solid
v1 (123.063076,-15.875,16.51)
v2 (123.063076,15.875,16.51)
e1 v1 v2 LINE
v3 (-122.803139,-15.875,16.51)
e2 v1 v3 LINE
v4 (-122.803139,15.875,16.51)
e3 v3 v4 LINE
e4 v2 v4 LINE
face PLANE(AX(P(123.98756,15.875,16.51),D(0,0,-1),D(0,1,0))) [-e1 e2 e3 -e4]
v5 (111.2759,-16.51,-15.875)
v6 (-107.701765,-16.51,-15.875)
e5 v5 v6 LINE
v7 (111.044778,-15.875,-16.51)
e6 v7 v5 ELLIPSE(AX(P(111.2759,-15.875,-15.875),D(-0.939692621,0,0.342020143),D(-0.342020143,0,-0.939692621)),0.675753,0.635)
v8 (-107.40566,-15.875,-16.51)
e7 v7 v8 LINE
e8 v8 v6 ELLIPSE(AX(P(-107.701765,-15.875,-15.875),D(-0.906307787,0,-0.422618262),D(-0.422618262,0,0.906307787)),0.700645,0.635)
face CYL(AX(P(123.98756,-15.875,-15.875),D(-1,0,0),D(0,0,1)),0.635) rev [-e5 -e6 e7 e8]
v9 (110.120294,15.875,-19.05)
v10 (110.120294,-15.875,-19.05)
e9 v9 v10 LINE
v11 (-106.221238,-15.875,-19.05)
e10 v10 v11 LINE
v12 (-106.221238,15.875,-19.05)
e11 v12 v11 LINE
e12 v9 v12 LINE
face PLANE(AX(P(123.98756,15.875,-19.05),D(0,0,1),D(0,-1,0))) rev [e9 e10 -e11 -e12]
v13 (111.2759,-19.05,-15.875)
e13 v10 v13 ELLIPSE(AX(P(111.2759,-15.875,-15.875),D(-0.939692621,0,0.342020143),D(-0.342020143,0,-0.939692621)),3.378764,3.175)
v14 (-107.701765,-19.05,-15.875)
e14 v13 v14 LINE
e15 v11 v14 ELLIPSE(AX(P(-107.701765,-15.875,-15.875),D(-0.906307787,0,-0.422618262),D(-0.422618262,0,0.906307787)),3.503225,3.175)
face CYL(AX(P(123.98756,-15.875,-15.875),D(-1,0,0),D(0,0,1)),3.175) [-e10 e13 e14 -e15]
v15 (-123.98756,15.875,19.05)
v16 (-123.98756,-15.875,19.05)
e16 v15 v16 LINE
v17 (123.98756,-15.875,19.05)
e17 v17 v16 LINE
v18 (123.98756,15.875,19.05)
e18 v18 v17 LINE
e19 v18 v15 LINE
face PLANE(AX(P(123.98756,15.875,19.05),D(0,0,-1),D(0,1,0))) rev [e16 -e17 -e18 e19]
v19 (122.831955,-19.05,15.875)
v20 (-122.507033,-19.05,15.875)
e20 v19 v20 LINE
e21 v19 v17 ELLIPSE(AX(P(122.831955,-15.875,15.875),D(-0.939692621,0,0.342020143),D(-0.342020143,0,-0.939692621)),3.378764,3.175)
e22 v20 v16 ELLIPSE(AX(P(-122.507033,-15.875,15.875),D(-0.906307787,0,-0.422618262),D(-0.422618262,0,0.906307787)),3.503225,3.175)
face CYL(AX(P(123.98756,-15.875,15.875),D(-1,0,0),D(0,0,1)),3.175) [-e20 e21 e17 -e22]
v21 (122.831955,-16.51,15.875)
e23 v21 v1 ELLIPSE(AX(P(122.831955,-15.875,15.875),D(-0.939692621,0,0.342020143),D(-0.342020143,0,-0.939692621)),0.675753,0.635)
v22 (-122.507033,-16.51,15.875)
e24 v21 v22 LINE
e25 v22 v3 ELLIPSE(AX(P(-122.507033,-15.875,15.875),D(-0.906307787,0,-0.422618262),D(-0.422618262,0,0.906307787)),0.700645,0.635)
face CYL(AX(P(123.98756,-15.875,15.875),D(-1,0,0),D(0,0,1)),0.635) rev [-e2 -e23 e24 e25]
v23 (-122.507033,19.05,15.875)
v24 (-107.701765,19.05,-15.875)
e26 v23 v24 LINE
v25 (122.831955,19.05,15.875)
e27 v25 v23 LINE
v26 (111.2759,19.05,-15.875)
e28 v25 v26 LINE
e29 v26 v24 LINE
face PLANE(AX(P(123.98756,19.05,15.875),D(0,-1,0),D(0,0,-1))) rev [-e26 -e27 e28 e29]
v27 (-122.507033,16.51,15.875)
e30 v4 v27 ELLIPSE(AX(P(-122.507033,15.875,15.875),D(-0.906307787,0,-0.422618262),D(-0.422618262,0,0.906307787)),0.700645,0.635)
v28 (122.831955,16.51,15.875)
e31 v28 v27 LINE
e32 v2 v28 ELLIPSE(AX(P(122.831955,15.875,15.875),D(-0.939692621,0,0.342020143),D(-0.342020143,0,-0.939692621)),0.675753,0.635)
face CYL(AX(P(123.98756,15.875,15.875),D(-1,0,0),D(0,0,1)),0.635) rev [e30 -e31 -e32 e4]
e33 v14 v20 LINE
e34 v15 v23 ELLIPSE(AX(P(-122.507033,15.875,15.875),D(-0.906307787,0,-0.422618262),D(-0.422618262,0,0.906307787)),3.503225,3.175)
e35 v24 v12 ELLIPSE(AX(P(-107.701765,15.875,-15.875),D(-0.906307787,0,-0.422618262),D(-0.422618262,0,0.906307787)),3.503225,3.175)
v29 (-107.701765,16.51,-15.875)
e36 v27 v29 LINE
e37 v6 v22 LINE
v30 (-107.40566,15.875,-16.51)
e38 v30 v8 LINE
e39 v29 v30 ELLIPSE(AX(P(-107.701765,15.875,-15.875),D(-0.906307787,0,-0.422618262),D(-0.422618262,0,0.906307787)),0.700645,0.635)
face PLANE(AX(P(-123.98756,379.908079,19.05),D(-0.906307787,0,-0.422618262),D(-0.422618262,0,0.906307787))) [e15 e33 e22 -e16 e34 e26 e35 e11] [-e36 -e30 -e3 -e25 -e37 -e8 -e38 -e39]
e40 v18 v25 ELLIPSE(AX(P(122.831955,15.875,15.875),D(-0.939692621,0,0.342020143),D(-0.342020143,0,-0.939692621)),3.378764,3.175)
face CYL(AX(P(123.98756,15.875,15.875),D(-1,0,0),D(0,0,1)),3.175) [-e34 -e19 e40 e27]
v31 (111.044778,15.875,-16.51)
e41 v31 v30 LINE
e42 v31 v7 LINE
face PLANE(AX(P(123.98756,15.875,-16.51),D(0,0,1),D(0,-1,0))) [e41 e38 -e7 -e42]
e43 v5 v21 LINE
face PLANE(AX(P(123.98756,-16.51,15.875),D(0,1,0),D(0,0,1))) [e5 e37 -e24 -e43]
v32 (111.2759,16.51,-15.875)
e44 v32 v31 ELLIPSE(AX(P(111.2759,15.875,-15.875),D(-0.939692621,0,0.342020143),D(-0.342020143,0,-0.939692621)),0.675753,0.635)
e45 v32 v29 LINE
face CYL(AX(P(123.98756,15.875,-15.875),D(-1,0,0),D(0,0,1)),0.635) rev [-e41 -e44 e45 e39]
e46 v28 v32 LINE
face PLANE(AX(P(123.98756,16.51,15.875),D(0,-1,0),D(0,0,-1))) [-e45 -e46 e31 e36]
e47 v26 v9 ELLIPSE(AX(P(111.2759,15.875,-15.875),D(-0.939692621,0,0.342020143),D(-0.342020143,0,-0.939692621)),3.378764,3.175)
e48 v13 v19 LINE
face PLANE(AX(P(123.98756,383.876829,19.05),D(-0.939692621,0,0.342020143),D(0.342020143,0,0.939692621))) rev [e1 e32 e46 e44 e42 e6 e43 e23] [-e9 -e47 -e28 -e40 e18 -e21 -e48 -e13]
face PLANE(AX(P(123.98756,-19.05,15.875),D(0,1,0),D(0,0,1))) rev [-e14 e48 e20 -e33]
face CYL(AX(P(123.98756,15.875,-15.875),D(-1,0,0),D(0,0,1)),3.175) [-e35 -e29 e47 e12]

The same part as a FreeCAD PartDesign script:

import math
import FreeCAD as App
import Part
import Sketcher

V = App.Vector
Q = App.Units.Quantity


def add_polygon(sketch, points):
    """Adds a closed chain of lines whose ends are joined by coincident constraints."""
    first, n = sketch.GeometryCount, len(points)
    for a, b in zip(points, points[1:] + points[:1]):
        sketch.addGeometry(Part.LineSegment(App.Vector(*a, 0), App.Vector(*b, 0)), False)
    for i in range(n):
        sketch.addConstraint(Sketcher.Constraint("Coincident", first + i, 2, first + (i + 1) % n, 1))

doc = App.newDocument("Part")
body = doc.addObject("PartDesign::Body", "Body")

# Sketch on YZ plane
sketch1 = body.newObject("Sketcher::SketchObject", "Sketch")
sketch1.AttachmentSupport = (doc.getObject("YZ_Plane"), [""])
sketch1.MapMode = "FlatFace"
sketch1.addGeometry([
    Part.LineSegment(V(19.1, -15.9, 0), V(19.1, 15.9, 0)),  # 0
    Part.ArcOfCircle(Part.Circle(V(15.9, 15.9, 0), V(0, 0, 1), 3.2), math.radians(0), math.radians(90)),  # 1
    Part.LineSegment(V(15.9, 19.1, 0), V(-15.9, 19.1, 0)),  # 2
    Part.ArcOfCircle(Part.Circle(V(-15.9, 15.9, 0), V(0, 0, 1), 3.2), math.radians(90), math.radians(180)),  # 3
    Part.LineSegment(V(-19.1, 15.9, 0), V(-19.1, -15.9, 0)),  # 4
    Part.ArcOfCircle(Part.Circle(V(-15.9, -15.9, 0), V(0, 0, 1), 3.2), math.radians(-180), math.radians(-90)),  # 5
    Part.LineSegment(V(-15.9, -19.1, 0), V(15.9, -19.1, 0)),  # 6
    Part.ArcOfCircle(Part.Circle(V(15.9, -15.9, 0), V(0, 0, 1), 3.2), math.radians(-90), math.radians(0)),  # 7
    Part.LineSegment(V(16.5, 15.9, 0), V(16.5, -15.9, 0)),  # 8
    Part.ArcOfCircle(Part.Circle(V(15.9, -15.9, 0), V(0, 0, 1), 0.6), math.radians(-90), math.radians(0)),  # 9
    Part.LineSegment(V(15.9, -16.5, 0), V(-15.9, -16.5, 0)),  # 10
    Part.ArcOfCircle(Part.Circle(V(-15.9, -15.9, 0), V(0, 0, 1), 0.6), math.radians(180), math.radians(270)),  # 11
    Part.LineSegment(V(-16.5, -15.9, 0), V(-16.5, 15.9, 0)),  # 12
    Part.ArcOfCircle(Part.Circle(V(-15.9, 15.9, 0), V(0, 0, 1), 0.6), math.radians(90), math.radians(180)),  # 13
    Part.LineSegment(V(-15.9, 16.5, 0), V(15.9, 16.5, 0)),  # 14
    Part.ArcOfCircle(Part.Circle(V(15.9, 15.9, 0), V(0, 0, 1), 0.6), math.radians(0), math.radians(90)),  # 15
], False)
sketch1.addConstraint([
    Sketcher.Constraint("Tangent", 0, 2, 1, 1),
    Sketcher.Constraint("Tangent", 1, 2, 2, 1),
    Sketcher.Constraint("Tangent", 2, 2, 3, 1),
    Sketcher.Constraint("Tangent", 3, 2, 4, 1),
    Sketcher.Constraint("Tangent", 4, 2, 5, 1),
    Sketcher.Constraint("Tangent", 5, 2, 6, 1),
    Sketcher.Constraint("Tangent", 6, 2, 7, 1),
    Sketcher.Constraint("Tangent", 7, 2, 0, 1),
    Sketcher.Constraint("Tangent", 8, 2, 9, 2),
    Sketcher.Constraint("Tangent", 9, 1, 10, 1),
    Sketcher.Constraint("Tangent", 10, 2, 11, 2),
    Sketcher.Constraint("Tangent", 11, 1, 12, 1),
    Sketcher.Constraint("Tangent", 12, 2, 13, 2),
    Sketcher.Constraint("Tangent", 13, 1, 14, 1),
    Sketcher.Constraint("Tangent", 14, 2, 15, 2),
    Sketcher.Constraint("Tangent", 15, 1, 8, 1),
    Sketcher.Constraint("Vertical", 0),
    Sketcher.Constraint("Horizontal", 2),
    Sketcher.Constraint("Vertical", 4),
    Sketcher.Constraint("Horizontal", 6),
    Sketcher.Constraint("Vertical", 8),
    Sketcher.Constraint("Horizontal", 10),
    Sketcher.Constraint("Vertical", 12),
    Sketcher.Constraint("Horizontal", 14),
    Sketcher.Constraint("Coincident", 9, 3, 7, 3),
    Sketcher.Constraint("Coincident", 11, 3, 5, 3),
    Sketcher.Constraint("Coincident", 13, 3, 3, 3),
    Sketcher.Constraint("Equal", 1, 3),
    Sketcher.Constraint("Equal", 3, 5),
    Sketcher.Constraint("Equal", 5, 7),
    Sketcher.Constraint("Equal", 13, 15),
    Sketcher.Constraint("Symmetric", 1, 3, 5, 3, -1, 1),
    Sketcher.Constraint("Equal", 14, 0),
    Sketcher.Constraint("Radius", 1, Q("0.125 in")),
    Sketcher.Constraint("Radius", 9, Q("0.025 in")),
    Sketcher.Constraint("DistanceX", 2, 2, 2, 1, Q("1.25 in")),
])
pad1 = body.newObject("PartDesign::Pad", "Pad")
pad1.Profile = sketch1
pad1.Length = Q("9.7628 in")
pad1.Midplane = True

# Sketch on XZ plane
sketch2 = body.newObject("Sketcher::SketchObject", "Sketch001")
sketch2.AttachmentSupport = (doc.getObject("XZ_Plane"), [""])
sketch2.MapMode = "FlatFace"
sketch2.AttachmentOffset = App.Placement(V(0, 0, -0.75 * 25.4), App.Rotation())
add_polygon(sketch2, [(124, 19), (299, 500), (1261, 150), (897, -850), (-65, -500), (110, -19)])  # lines 0-5
sketch2.addConstraint([
    Sketcher.Constraint("Perpendicular", 0, 1),
    Sketcher.Constraint("Perpendicular", 1, 2),
    Sketcher.Constraint("Perpendicular", 2, 3),
    Sketcher.Constraint("Perpendicular", 3, 4),
    Sketcher.Constraint("Parallel", 4, 5),
    Sketcher.Constraint("Equal", 0, 4),
    Sketcher.Constraint("Angle", 0, Q("70 deg")),
    Sketcher.Constraint("DistanceY", 4, 2, 5, 2, Q("1.5 in")),
    Sketcher.Constraint("DistanceY", 4, 2, -1, 1, Q("0.75 in")),
    Sketcher.Constraint("DistanceX", -1, 1, 5, 2, Q("4.8814 in")),
    Sketcher.Constraint("Distance", 2, Q("1064.085069 mm")),
    Sketcher.Constraint("DistanceY", -1, 1, 1, 2, Q("149.885182 mm")),
])
pocket1 = body.newObject("PartDesign::Pocket", "Pocket")
pocket1.Profile = sketch2
pocket1.Type = "ThroughAll"
pocket1.Midplane = True

# Sketch on XZ plane
sketch3 = body.newObject("Sketcher::SketchObject", "Sketch002")
sketch3.AttachmentSupport = (doc.getObject("XZ_Plane"), [""])
sketch3.MapMode = "FlatFace"
sketch3.AttachmentOffset = App.Placement(V(0, 0, -0.75 * 25.4), App.Rotation())
add_polygon(sketch3, [(-340, 483), (-124, 19), (-106, -19), (110, -483), (-818, -915), (-1268, 50)])  # lines 0-5
sketch3.addConstraint([
    Sketcher.Constraint("Parallel", 0, 1),
    Sketcher.Constraint("Parallel", 1, 2),
    Sketcher.Constraint("Perpendicular", 2, 3),
    Sketcher.Constraint("Perpendicular", 3, 4),
    Sketcher.Constraint("Perpendicular", 4, 5),
    Sketcher.Constraint("Equal", 0, 2),
    Sketcher.Constraint("Angle", 0, Q("-65 deg")),
    Sketcher.Constraint("DistanceY", 1, 2, 0, 2, Q("1.5 in")),
    Sketcher.Constraint("DistanceY", -1, 1, 0, 2, Q("0.75 in")),
    Sketcher.Constraint("DistanceX", 0, 2, -1, 1, Q("4.8814 in")),
    Sketcher.Constraint("DistanceY", 2, 2, -1, 1, Q("482.871089 mm")),
    Sketcher.Constraint("DistanceX", 3, 2, -1, 1, Q("817.58009 mm")),
])
pocket2 = body.newObject("PartDesign::Pocket", "Pocket001")
pocket2.Profile = sketch3
pocket2.Type = "ThroughAll"
pocket2.Midplane = True

doc.recompute()
